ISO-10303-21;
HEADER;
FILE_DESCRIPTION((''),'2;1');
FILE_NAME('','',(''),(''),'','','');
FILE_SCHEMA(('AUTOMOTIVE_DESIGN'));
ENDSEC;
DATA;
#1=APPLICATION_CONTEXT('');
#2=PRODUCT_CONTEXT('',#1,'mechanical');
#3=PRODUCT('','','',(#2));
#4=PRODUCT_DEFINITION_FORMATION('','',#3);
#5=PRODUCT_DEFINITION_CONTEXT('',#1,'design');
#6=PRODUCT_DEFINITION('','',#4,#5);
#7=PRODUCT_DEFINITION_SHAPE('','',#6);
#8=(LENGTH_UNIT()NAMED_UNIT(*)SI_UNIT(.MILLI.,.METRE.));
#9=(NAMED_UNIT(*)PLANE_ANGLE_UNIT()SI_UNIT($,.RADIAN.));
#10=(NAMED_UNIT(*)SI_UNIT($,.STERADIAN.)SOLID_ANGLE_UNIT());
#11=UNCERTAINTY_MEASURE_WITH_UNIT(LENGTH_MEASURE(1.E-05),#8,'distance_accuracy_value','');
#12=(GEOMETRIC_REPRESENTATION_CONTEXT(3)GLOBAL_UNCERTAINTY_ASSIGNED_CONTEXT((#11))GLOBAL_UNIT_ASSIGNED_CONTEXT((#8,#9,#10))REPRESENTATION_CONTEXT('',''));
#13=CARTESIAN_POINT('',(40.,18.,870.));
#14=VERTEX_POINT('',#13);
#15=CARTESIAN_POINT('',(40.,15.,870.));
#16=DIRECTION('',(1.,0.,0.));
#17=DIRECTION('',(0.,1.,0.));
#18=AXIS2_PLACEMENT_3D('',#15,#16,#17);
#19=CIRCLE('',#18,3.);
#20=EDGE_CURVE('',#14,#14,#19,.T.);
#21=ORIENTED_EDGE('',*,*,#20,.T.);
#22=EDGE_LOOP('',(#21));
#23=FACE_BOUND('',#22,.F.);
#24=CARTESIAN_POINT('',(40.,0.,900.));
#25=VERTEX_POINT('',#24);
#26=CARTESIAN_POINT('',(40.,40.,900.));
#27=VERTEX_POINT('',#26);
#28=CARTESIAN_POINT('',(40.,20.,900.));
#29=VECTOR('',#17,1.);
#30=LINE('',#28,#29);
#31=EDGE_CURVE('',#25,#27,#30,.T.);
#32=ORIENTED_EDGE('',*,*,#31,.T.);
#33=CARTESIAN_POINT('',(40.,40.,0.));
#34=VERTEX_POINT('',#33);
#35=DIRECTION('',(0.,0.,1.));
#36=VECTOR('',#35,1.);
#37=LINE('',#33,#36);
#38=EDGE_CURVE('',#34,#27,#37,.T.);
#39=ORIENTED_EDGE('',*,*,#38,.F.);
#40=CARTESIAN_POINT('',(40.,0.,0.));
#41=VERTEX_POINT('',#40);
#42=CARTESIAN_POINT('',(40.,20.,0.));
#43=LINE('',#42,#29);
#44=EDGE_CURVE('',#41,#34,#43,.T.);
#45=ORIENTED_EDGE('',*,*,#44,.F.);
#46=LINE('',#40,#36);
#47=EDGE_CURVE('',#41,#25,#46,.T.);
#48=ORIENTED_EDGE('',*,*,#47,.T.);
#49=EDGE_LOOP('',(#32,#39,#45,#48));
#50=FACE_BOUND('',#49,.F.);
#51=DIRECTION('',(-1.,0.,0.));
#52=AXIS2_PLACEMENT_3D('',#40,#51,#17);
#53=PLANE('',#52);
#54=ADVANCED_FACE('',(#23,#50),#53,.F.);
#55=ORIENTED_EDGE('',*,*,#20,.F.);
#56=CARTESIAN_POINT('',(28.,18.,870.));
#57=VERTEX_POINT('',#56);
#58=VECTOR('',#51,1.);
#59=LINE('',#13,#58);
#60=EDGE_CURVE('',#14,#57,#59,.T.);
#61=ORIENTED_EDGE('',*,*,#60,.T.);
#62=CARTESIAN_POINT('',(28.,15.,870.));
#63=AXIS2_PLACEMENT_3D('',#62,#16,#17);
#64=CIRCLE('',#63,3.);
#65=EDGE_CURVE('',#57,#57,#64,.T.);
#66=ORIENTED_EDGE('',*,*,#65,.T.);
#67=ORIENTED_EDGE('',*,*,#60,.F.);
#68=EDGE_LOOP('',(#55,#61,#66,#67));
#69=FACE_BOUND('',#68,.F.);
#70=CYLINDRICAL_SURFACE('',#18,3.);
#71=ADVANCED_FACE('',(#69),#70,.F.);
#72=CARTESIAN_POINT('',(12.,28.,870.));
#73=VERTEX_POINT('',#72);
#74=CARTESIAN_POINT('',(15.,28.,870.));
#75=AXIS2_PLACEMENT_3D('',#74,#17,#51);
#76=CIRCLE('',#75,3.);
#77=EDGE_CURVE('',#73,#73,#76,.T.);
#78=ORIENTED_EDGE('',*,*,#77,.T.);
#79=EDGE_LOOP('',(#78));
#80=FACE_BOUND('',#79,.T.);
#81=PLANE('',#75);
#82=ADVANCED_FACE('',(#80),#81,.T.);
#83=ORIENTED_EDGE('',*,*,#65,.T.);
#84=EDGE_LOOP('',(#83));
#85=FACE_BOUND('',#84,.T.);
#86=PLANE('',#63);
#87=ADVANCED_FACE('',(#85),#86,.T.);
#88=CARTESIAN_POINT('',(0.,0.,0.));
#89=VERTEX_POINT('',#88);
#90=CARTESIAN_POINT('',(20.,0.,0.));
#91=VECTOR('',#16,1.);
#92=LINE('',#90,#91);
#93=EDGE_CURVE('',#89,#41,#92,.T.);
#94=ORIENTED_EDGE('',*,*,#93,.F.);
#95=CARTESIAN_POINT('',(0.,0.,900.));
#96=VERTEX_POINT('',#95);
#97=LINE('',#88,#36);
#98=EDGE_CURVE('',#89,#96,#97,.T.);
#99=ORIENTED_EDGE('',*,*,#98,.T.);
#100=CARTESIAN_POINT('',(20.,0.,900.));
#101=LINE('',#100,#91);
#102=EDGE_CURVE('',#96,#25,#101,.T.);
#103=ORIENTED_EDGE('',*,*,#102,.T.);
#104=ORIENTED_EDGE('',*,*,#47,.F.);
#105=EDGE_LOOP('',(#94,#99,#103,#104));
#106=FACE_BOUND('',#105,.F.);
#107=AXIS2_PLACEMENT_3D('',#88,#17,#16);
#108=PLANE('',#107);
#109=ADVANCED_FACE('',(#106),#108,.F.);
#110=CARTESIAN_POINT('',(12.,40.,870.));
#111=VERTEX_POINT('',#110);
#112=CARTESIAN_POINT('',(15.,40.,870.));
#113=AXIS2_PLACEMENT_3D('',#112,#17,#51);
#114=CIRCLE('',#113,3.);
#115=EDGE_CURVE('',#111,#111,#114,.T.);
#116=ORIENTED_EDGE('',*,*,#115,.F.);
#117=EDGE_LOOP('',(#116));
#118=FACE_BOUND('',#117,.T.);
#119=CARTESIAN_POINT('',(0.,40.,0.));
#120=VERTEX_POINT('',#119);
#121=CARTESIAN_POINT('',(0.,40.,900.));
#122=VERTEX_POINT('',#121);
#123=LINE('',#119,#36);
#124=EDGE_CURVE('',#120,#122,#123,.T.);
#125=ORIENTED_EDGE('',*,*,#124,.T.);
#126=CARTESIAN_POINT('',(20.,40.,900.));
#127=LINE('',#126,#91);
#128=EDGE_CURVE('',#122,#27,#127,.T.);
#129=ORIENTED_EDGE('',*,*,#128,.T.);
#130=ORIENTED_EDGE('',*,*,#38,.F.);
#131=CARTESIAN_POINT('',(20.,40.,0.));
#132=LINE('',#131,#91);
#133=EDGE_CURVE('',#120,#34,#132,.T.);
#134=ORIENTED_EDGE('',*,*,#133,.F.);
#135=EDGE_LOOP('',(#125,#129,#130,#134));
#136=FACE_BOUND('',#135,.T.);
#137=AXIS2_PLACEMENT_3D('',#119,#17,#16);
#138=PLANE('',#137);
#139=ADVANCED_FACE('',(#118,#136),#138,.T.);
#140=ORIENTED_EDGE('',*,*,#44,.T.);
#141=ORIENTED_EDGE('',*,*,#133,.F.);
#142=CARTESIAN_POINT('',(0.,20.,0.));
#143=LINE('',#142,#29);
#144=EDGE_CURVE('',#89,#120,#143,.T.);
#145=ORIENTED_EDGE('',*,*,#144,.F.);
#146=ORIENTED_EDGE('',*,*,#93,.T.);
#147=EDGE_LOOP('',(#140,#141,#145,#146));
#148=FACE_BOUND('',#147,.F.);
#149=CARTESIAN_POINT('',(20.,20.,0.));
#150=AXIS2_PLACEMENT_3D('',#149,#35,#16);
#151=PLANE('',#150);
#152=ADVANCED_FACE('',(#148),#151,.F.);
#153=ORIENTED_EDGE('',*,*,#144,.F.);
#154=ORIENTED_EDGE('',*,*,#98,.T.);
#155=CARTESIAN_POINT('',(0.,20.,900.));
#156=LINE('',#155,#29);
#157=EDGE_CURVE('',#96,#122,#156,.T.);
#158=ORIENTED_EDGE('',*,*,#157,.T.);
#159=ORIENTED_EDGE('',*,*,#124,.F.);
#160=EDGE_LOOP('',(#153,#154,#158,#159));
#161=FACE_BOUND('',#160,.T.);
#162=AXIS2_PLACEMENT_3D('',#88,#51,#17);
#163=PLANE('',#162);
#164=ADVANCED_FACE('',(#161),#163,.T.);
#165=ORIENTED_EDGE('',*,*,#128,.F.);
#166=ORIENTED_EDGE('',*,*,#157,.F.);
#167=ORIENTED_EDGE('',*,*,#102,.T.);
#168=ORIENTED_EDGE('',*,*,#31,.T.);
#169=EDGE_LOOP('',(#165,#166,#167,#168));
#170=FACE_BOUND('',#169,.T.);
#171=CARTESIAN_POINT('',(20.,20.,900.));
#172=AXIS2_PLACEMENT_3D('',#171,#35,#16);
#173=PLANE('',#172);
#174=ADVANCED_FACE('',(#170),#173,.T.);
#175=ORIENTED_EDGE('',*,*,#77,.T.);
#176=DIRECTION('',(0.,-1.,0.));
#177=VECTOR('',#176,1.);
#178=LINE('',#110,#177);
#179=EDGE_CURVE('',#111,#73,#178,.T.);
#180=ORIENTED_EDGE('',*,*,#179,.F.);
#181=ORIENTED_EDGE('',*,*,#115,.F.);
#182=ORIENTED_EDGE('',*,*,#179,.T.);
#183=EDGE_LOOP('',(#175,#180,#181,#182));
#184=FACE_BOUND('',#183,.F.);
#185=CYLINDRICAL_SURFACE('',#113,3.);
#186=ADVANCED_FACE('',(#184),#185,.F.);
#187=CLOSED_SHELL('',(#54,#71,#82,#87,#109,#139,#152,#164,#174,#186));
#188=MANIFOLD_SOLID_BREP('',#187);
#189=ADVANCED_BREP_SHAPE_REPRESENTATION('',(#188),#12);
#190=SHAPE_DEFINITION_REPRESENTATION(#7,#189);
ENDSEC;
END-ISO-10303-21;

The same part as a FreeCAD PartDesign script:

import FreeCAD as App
import Part
import Sketcher

V = App.Vector
Q = App.Units.Quantity


def add_polygon(sketch, points):
    """Adds a closed chain of lines whose ends are joined by coincident constraints."""
    first, n = sketch.GeometryCount, len(points)
    for a, b in zip(points, points[1:] + points[:1]):
        sketch.addGeometry(Part.LineSegment(App.Vector(*a, 0), App.Vector(*b, 0)), False)
    for i in range(n):
        sketch.addConstraint(Sketcher.Constraint("Coincident", first + i, 2, first + (i + 1) % n, 1))

doc = App.newDocument("Part")
body = doc.addObject("PartDesign::Body", "Body")

sketch1 = body.newObject("Sketcher::SketchObject", "Sketch")
sketch1.AttachmentSupport = (doc.getObject("XY_Plane"), [""])
sketch1.MapMode = "FlatFace"
add_polygon(sketch1, [(0, 40), (0, 0), (40, 0), (40, 40)])
sketch1.addConstraint([
    Sketcher.Constraint("Vertical", 0),
    Sketcher.Constraint("Horizontal", 1),
    Sketcher.Constraint("Vertical", 2),
    Sketcher.Constraint("Horizontal", 3),
    Sketcher.Constraint("Coincident", 0, 2, -1, 1),
    Sketcher.Constraint("Equal", 3, 0),
    Sketcher.Constraint("DistanceX", 1, 1, 1, 2, Q("40 mm")),
])
pad1 = body.newObject("PartDesign::Pad", "Pad")
pad1.Profile = sketch1
pad1.Length = 900

sketch2 = body.newObject("Sketcher::SketchObject", "Sketch001")
sketch2.AttachmentSupport = (doc.getObject("YZ_Plane"), [""])
sketch2.MapMode = "FlatFace"
sketch2.AttachmentOffset = App.Placement(V(0, 0, 40), App.Rotation())
sketch2.addGeometry(Part.Circle(V(15, 870, 0), V(0, 0, 1), 3), False)
sketch2.addConstraint([
    Sketcher.Constraint("Diameter", 0, Q("6 mm")),
    Sketcher.Constraint("DistanceX", -1, 1, 0, 3, Q("15 mm")),
    Sketcher.Constraint("DistanceY", -1, 1, 0, 3, Q("870 mm")),
])
pocket1 = body.newObject("PartDesign::Pocket", "Pocket")
pocket1.Profile = sketch2
pocket1.Length = 12

sketch3 = body.newObject("Sketcher::SketchObject", "Sketch002")
sketch3.AttachmentSupport = (doc.getObject("XZ_Plane"), [""])
sketch3.MapMode = "FlatFace"
sketch3.AttachmentOffset = App.Placement(V(0, 0, -40), App.Rotation())
sketch3.addGeometry(Part.Circle(V(15, 870, 0), V(0, 0, 1), 3), False)
sketch3.addConstraint([
    Sketcher.Constraint("Diameter", 0, Q("6 mm")),
    Sketcher.Constraint("DistanceX", -1, 1, 0, 3, Q("15 mm")),
    Sketcher.Constraint("DistanceY", -1, 1, 0, 3, Q("870 mm")),
])
pocket2 = body.newObject("PartDesign::Pocket", "Pocket001")
pocket2.Profile = sketch3
pocket2.Length = 12
pocket2.Reversed = True

doc.recompute()
